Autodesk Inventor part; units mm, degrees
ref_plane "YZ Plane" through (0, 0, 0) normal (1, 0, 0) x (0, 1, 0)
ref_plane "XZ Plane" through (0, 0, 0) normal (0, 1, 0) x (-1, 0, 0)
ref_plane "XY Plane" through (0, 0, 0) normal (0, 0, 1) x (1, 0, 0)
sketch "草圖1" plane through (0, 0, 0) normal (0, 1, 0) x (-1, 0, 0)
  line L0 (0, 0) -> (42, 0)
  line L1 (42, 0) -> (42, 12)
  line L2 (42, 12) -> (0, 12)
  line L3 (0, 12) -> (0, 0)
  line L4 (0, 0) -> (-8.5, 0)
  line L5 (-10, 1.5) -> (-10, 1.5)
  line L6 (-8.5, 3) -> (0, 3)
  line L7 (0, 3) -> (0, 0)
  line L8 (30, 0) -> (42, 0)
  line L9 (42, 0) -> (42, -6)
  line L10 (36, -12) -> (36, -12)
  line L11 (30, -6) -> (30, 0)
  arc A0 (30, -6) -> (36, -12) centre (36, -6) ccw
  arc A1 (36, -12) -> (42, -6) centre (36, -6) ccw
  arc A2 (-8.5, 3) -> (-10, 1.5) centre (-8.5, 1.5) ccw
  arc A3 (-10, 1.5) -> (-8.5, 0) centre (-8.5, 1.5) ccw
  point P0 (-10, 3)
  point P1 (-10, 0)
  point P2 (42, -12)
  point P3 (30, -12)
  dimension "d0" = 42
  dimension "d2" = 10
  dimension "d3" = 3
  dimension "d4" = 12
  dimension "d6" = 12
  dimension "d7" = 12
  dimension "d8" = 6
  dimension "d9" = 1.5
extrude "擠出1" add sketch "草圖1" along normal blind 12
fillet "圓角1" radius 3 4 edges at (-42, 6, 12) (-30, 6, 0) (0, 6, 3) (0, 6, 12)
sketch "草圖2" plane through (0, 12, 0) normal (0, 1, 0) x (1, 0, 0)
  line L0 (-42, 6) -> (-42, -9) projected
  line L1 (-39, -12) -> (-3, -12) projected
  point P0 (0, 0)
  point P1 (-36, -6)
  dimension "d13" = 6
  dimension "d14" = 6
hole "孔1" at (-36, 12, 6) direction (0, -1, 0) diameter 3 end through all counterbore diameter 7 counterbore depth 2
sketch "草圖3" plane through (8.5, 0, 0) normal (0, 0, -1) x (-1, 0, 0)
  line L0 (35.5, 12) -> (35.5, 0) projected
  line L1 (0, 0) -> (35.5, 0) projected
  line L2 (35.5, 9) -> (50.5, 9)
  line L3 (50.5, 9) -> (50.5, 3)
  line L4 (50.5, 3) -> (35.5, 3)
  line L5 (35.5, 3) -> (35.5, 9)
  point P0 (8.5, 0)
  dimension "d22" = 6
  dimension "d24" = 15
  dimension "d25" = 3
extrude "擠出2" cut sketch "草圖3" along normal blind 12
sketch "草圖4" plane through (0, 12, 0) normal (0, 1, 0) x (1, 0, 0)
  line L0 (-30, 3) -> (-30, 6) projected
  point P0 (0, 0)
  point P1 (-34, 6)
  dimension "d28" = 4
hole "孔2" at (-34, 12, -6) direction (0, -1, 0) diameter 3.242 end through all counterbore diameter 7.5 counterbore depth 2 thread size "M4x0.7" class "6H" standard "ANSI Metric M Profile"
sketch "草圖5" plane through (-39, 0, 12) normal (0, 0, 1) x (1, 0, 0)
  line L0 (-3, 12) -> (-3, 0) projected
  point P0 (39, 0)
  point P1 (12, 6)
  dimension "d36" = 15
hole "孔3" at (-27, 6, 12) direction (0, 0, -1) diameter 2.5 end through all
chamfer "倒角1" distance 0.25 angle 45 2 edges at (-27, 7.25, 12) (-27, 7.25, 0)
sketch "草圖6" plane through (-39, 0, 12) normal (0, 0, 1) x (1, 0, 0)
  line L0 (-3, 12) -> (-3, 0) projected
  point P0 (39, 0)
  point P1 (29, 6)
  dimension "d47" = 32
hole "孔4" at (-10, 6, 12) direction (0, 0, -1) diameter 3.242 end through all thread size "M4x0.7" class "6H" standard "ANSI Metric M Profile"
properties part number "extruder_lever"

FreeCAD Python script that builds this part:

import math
import FreeCAD as App
import Part
import Sketcher
from FreeCAD import Vector
Q = App.Units.Quantity


def edges_at(feature, points):
    """Names of the edges that pass closest to the given points."""
    edges = feature.Shape.Edges
    near = lambda p: min(range(len(edges)), key=lambda i: edges[i].distToShape(Part.Vertex(*p))[0])
    return sorted({f"Edge{near(p) + 1}" for p in points})

doc = App.newDocument("Part")
body = doc.addObject("PartDesign::Body", "Body")

# Sketch on XZ plane
sketch1 = body.newObject("Sketcher::SketchObject", "Sketch")
sketch1.AttachmentSupport = (doc.getObject("XZ_Plane"), [""])
sketch1.MapMode = "FlatFace"
sketch1.addGeometry([
    Part.LineSegment(Vector(0, 12, 0), Vector(0, 3, 0)),  # 0
    Part.LineSegment(Vector(0, 3, 0), Vector(8.5, 3, 0)),  # 1
    Part.ArcOfCircle(Part.Circle(Vector(8.5, 1.5, 0), Vector(0, 0, 1), 1.5), math.radians(-90), math.radians(90)),  # 2
    Part.LineSegment(Vector(8.5, 0, 0), Vector(-30, 0, 0)),  # 3
    Part.LineSegment(Vector(-30, 0, 0), Vector(-30, -6, 0)),  # 4
    Part.ArcOfCircle(Part.Circle(Vector(-36, -6, 0), Vector(0, 0, 1), 6), math.radians(180), math.radians(360)),  # 5
    Part.LineSegment(Vector(-42, -6, 0), Vector(-42, 12, 0)),  # 6
    Part.LineSegment(Vector(-42, 12, 0), Vector(0, 12, 0)),  # 7
], False)
sketch1.addConstraint([
    Sketcher.Constraint("Coincident", 0, 2, 1, 1),
    Sketcher.Constraint("Tangent", 1, 2, 2, 2),
    Sketcher.Constraint("Tangent", 2, 1, 3, 1),
    Sketcher.Constraint("Coincident", 3, 2, 4, 1),
    Sketcher.Constraint("Tangent", 4, 2, 5, 2),
    Sketcher.Constraint("Tangent", 5, 1, 6, 1),
    Sketcher.Constraint("Coincident", 6, 2, 7, 1),
    Sketcher.Constraint("Coincident", 7, 2, 0, 1),
    Sketcher.Constraint("Vertical", 0),
    Sketcher.Constraint("Horizontal", 1),
    Sketcher.Constraint("Horizontal", 3),
    Sketcher.Constraint("Vertical", 4),
    Sketcher.Constraint("Vertical", 6),
    Sketcher.Constraint("Horizontal", 7),
    Sketcher.Constraint("PointOnObject", 0, 2, -2),
    Sketcher.Constraint("PointOnObject", 2, 1, -1),
    Sketcher.Constraint("Radius", 5, Q("6 mm")),
    Sketcher.Constraint("Radius", 2, Q("1.5 mm")),
    Sketcher.Constraint("DistanceX", 7, 1, 7, 2, Q("42 mm")),
    Sketcher.Constraint("DistanceY", 4, 2, 4, 1, Q("6 mm")),
    Sketcher.Constraint("DistanceY", -1, 1, 6, 2, Q("12 mm")),
    Sketcher.Constraint("DistanceX", 1, 1, 1, 2, Q("8.5 mm")),
])
pad1 = body.newObject("PartDesign::Pad", "Pad")
pad1.Profile = sketch1
pad1.Length = 12
pad1.Reversed = True
doc.recompute()

fillet = body.newObject("PartDesign::Fillet", "Fillet")
fillet.Base = (pad1, edges_at(pad1, [
    (-42, 6, 12),
    (-30, 6, 0),
    (0, 6, 3),
    (0, 6, 12),
]))
fillet.Radius = 3

# Sketch on XZ plane
sketch2 = body.newObject("Sketcher::SketchObject", "Sketch001")
sketch2.AttachmentSupport = (doc.getObject("XZ_Plane"), [""])
sketch2.MapMode = "FlatFace"
sketch2.AttachmentOffset = App.Placement(Vector(0, 0, -12), App.Rotation())
sketch2.addGeometry(Part.Circle(Vector(-36, 6, 0), Vector(0, 0, 1), 1.5), False)
sketch2.addConstraint([
    Sketcher.Constraint("Diameter", 0, Q("3 mm")),
    Sketcher.Constraint("DistanceX", 0, 3, -1, 1, Q("36 mm")),
    Sketcher.Constraint("DistanceY", -1, 1, 0, 3, Q("6 mm")),
])
doc.recompute()
hole = body.newObject("PartDesign::Hole", "Hole")
hole.Profile = sketch2
hole.ThreadType = "None"
hole.Diameter = 3
hole.DepthType = "ThroughAll"
hole.HoleCutType = "Counterbore"
hole.HoleCutDiameter = 7
hole.HoleCutDepth = 2
hole.Reversed = True

# Sketch on XY plane
sketch3 = body.newObject("Sketcher::SketchObject", "Sketch002")
sketch3.AttachmentSupport = (doc.getObject("XY_Plane"), [""])
sketch3.MapMode = "FlatFace"
sketch3.addGeometry([
    Part.LineSegment(Vector(-42, 9, 0), Vector(-27, 9, 0)),
    Part.LineSegment(Vector(-27, 9, 0), Vector(-27, 3, 0)),
    Part.LineSegment(Vector(-27, 3, 0), Vector(-42, 3, 0)),
    Part.LineSegment(Vector(-42, 3, 0), Vector(-42, 9, 0)),
], False)
sketch3.addConstraint([
    Sketcher.Constraint("Coincident", 0, 2, 1, 1),
    Sketcher.Constraint("Coincident", 1, 2, 2, 1),
    Sketcher.Constraint("Coincident", 2, 2, 3, 1),
    Sketcher.Constraint("Coincident", 3, 2, 0, 1),
    Sketcher.Constraint("Horizontal", 0),
    Sketcher.Constraint("Vertical", 1),
    Sketcher.Constraint("Horizontal", 2),
    Sketcher.Constraint("Vertical", 3),
    Sketcher.Constraint("DistanceX", 0, 1, 0, 2, Q("15 mm")),
    Sketcher.Constraint("DistanceY", 1, 2, 1, 1, Q("6 mm")),
    Sketcher.Constraint("DistanceY", -1, 1, 1, 2, Q("3 mm")),
    Sketcher.Constraint("DistanceX", 0, 2, -1, 1, Q("27 mm")),
])
pocket1 = body.newObject("PartDesign::Pocket", "Pocket")
pocket1.Profile = sketch3
pocket1.Length = 12

# Sketch on XZ plane
sketch4 = body.newObject("Sketcher::SketchObject", "Sketch003")
sketch4.AttachmentSupport = (doc.getObject("XZ_Plane"), [""])
sketch4.MapMode = "FlatFace"
sketch4.AttachmentOffset = App.Placement(Vector(0, 0, -12), App.Rotation())
sketch4.addGeometry(Part.Circle(Vector(-34, -6, 0), Vector(0, 0, 1), 1.6), False)
sketch4.addConstraint([
    Sketcher.Constraint("Diameter", 0, Q("3.242 mm")),
    Sketcher.Constraint("DistanceX", 0, 3, -1, 1, Q("34 mm")),
    Sketcher.Constraint("DistanceY", 0, 3, -1, 1, Q("6 mm")),
])
doc.recompute()
hole2 = body.newObject("PartDesign::Hole", "Hole001")
hole2.Profile = sketch4
hole2.ThreadType = "None"
hole2.Diameter = 3.242
hole2.DepthType = "ThroughAll"
hole2.HoleCutType = "Counterbore"
hole2.HoleCutDiameter = 7.5
hole2.HoleCutDepth = 2
hole2.Reversed = True

# Sketch on XY plane
sketch5 = body.newObject("Sketcher::SketchObject", "Sketch004")
sketch5.AttachmentSupport = (doc.getObject("XY_Plane"), [""])
sketch5.MapMode = "FlatFace"
sketch5.AttachmentOffset = App.Placement(Vector(0, 0, 12), App.Rotation())
sketch5.addGeometry(Part.Circle(Vector(-27, 6, 0), Vector(0, 0, 1), 1.2), False)
sketch5.addConstraint([
    Sketcher.Constraint("Diameter", 0, Q("2.5 mm")),
    Sketcher.Constraint("DistanceX", 0, 3, -1, 1, Q("27 mm")),
    Sketcher.Constraint("DistanceY", -1, 1, 0, 3, Q("6 mm")),
])
doc.recompute()
hole3 = body.newObject("PartDesign::Hole", "Hole002")
hole3.Profile = sketch5
hole3.ThreadType = "None"
hole3.Diameter = 2.5
hole3.DepthType = "ThroughAll"
doc.recompute()

chamfer = body.newObject("PartDesign::Chamfer", "Chamfer")
chamfer.Base = (hole3, edges_at(hole3, [(-27, 7.25, 12), (-27, 7.25, 0)]))
chamfer.Size = 0.25

# Sketch on XY plane
sketch6 = body.newObject("Sketcher::SketchObject", "Sketch005")
sketch6.AttachmentSupport = (doc.getObject("XY_Plane"), [""])
sketch6.MapMode = "FlatFace"
sketch6.AttachmentOffset = App.Placement(Vector(0, 0, 12), App.Rotation())
sketch6.addGeometry(Part.Circle(Vector(-10, 6, 0), Vector(0, 0, 1), 1.6), False)
sketch6.addConstraint([
    Sketcher.Constraint("Diameter", 0, Q("3.242 mm")),
    Sketcher.Constraint("DistanceX", 0, 3, -1, 1, Q("10 mm")),
    Sketcher.Constraint("DistanceY", -1, 1, 0, 3, Q("6 mm")),
])
doc.recompute()
hole4 = body.newObject("PartDesign::Hole", "Hole003")
hole4.Profile = sketch6
hole4.ThreadType = "None"
hole4.Diameter = 3.242
hole4.DepthType = "ThroughAll"

doc.recompute()
